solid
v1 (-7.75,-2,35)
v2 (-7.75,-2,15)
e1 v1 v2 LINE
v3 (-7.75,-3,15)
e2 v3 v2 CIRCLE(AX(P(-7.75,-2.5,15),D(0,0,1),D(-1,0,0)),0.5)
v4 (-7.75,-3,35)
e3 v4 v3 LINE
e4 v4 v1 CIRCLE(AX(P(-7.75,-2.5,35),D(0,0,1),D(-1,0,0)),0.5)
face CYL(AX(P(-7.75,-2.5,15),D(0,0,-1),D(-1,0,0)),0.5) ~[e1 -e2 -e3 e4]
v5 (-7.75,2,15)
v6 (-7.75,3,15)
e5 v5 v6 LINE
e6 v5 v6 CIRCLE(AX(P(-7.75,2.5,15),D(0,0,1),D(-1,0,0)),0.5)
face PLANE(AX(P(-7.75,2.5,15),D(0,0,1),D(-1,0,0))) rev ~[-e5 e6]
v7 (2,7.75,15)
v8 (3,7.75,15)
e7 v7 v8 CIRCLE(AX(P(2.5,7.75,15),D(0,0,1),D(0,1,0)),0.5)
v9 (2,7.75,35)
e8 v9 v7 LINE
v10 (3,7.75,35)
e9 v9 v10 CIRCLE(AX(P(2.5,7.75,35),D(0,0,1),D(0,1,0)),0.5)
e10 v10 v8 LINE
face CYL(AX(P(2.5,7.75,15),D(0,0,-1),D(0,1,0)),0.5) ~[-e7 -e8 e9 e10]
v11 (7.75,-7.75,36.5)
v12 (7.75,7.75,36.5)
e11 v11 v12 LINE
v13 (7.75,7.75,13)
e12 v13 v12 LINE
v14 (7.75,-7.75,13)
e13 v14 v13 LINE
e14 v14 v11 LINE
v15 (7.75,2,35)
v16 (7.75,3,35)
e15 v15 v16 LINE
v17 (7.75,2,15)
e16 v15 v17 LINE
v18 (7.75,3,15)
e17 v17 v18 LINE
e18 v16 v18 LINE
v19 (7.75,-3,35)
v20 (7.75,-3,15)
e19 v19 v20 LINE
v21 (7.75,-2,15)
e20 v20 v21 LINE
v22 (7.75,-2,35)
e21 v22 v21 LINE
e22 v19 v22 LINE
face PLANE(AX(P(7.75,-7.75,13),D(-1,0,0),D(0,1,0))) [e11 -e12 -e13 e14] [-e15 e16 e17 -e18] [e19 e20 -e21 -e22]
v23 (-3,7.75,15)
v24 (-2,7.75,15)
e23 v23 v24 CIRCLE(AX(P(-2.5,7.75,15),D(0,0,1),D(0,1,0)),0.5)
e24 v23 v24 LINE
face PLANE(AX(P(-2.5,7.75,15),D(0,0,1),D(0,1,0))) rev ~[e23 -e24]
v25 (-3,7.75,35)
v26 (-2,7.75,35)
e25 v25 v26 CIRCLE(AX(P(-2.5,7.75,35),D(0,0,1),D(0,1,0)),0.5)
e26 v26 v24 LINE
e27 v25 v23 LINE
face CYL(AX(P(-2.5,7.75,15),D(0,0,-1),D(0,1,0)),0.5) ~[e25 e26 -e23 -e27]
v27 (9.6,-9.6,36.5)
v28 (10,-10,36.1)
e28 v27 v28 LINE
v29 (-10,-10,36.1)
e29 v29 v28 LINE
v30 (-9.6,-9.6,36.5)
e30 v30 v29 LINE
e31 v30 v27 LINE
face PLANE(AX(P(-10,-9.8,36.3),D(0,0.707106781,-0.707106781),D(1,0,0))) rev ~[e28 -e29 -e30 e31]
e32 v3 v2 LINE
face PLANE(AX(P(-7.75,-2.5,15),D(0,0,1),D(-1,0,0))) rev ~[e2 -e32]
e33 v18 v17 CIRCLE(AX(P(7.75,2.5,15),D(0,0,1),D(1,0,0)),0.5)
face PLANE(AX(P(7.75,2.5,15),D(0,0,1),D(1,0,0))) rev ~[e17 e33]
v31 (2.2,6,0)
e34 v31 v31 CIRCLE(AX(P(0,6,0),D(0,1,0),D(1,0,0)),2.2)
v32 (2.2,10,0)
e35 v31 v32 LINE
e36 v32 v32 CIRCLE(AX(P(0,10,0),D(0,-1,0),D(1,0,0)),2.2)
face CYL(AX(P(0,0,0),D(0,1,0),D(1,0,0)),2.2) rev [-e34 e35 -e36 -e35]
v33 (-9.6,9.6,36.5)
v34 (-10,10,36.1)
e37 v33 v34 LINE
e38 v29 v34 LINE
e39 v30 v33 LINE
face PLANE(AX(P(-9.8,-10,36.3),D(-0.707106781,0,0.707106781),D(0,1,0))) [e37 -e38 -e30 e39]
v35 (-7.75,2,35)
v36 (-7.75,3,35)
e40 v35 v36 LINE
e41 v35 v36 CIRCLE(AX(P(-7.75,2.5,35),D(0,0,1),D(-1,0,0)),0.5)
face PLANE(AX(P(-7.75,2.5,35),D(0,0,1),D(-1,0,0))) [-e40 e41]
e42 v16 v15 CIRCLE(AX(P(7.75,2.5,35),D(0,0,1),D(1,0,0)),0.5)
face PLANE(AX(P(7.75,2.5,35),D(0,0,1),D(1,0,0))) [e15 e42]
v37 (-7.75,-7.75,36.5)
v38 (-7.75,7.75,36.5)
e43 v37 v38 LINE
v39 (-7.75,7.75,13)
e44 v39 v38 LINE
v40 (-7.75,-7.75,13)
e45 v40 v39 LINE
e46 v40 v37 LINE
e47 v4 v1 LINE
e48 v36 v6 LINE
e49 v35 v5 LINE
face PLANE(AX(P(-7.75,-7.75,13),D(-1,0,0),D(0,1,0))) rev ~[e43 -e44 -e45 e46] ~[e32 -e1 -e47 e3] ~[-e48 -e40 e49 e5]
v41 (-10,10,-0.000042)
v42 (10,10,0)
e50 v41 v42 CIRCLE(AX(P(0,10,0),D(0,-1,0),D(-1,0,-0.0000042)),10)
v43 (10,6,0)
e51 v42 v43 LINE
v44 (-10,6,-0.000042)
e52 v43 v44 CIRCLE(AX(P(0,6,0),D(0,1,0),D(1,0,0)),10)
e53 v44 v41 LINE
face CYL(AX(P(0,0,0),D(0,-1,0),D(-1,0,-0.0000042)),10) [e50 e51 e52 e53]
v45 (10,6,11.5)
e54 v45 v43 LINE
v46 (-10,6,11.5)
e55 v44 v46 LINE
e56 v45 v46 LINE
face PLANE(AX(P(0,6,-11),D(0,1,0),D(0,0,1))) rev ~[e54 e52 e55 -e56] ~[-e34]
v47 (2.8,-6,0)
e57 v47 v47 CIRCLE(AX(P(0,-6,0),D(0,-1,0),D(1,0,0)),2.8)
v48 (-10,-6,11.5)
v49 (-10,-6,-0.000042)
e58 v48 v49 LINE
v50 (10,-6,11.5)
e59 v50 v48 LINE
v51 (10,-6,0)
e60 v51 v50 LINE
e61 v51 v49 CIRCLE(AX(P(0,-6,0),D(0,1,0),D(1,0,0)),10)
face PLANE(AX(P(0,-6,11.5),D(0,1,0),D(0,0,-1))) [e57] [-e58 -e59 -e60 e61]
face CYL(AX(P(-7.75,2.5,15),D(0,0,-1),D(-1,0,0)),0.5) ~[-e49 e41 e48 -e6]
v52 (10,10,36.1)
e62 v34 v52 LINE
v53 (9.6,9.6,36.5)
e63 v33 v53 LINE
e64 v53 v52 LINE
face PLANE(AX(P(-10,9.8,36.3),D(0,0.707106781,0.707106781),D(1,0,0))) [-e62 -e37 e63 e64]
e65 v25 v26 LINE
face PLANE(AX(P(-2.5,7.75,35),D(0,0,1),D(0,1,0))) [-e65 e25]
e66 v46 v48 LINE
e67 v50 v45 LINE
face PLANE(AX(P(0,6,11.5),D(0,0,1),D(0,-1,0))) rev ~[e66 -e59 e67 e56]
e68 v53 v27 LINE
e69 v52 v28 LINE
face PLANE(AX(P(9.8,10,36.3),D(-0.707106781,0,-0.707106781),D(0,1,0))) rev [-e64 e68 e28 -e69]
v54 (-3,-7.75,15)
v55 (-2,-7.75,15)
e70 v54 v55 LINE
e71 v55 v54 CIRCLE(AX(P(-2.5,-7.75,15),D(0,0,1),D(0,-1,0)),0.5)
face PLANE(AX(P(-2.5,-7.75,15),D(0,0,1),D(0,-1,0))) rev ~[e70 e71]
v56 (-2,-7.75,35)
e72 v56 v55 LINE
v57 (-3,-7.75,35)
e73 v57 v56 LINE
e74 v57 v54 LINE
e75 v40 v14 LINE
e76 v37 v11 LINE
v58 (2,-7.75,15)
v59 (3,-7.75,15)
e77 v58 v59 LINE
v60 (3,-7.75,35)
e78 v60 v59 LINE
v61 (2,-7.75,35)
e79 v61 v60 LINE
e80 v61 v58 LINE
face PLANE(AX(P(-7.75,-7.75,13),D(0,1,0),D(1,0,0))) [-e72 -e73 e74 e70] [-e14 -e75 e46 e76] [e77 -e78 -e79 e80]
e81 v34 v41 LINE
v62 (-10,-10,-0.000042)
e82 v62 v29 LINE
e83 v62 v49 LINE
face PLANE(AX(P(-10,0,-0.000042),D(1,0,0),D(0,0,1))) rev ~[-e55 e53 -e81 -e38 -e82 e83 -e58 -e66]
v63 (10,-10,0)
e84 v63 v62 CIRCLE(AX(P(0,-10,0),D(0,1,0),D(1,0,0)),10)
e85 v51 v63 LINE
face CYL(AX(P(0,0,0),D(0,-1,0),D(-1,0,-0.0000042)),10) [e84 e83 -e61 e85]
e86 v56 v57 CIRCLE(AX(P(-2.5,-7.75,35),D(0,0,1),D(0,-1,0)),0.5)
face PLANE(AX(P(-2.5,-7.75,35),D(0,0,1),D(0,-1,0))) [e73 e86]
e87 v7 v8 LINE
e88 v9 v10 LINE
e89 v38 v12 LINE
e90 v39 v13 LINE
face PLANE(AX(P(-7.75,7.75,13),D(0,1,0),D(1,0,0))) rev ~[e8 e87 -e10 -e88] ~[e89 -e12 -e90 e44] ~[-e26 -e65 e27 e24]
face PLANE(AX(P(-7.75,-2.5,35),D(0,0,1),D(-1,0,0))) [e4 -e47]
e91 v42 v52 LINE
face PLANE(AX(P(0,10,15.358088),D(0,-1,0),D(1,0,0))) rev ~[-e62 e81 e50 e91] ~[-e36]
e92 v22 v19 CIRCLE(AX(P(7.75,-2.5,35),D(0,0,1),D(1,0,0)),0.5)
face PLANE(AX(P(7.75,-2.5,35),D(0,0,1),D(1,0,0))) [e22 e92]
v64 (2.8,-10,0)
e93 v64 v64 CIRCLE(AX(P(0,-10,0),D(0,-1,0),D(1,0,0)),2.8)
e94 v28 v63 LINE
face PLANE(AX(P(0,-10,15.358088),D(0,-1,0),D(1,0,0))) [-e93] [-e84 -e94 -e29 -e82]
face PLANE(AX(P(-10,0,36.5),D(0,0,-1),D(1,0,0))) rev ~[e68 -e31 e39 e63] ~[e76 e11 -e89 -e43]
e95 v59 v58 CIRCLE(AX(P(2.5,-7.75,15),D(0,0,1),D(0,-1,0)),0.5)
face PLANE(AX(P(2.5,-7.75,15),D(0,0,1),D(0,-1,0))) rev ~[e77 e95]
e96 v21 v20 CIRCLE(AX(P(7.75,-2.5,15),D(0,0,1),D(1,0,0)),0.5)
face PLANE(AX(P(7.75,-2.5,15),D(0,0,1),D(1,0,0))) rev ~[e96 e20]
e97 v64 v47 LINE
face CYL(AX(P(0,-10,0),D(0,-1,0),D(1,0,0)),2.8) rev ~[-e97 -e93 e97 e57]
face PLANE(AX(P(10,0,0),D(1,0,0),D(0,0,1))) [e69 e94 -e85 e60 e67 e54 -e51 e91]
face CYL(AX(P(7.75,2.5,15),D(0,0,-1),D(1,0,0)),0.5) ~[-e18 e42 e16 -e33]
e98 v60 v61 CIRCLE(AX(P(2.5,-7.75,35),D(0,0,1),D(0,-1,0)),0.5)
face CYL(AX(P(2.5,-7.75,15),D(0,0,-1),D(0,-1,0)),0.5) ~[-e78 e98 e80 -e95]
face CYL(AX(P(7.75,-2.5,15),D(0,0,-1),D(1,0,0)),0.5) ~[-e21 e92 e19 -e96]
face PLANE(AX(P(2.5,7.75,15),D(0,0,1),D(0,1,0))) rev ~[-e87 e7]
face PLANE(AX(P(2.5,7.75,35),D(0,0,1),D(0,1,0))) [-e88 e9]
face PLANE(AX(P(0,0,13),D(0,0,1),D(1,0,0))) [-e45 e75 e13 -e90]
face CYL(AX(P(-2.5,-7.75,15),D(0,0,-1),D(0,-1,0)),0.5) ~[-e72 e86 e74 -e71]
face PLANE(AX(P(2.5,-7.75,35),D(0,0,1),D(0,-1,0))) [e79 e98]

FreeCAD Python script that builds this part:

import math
import FreeCAD as App
import Part
import Sketcher
from FreeCAD import Vector


def edges_at(feature, points):
    """Names of the edges that pass closest to the given points."""
    edges = feature.Shape.Edges
    near = lambda p: min(range(len(edges)), key=lambda i: edges[i].distToShape(Part.Vertex(*p))[0])
    return sorted({f"Edge{near(p) + 1}" for p in points})


def add_polygon(sketch, points):
    """Adds a closed chain of lines whose ends are joined by coincident constraints."""
    first, n = sketch.GeometryCount, len(points)
    for a, b in zip(points, points[1:] + points[:1]):
        sketch.addGeometry(Part.LineSegment(App.Vector(*a, 0), App.Vector(*b, 0)), False)
    for i in range(n):
        sketch.addConstraint(Sketcher.Constraint("Coincident", first + i, 2, first + (i + 1) % n, 1))

doc = App.newDocument("Part")
body = doc.addObject("PartDesign::Body", "Body")

# Sketch on XZ plane
sketch1 = body.newObject("Sketcher::SketchObject", "Sketch")
sketch1.AttachmentSupport = (doc.getObject("XZ_Plane"), [""])
sketch1.MapMode = "FlatFace"
sketch1.addGeometry(Part.ArcOfCircle(Part.Circle(Vector(0, 0, 0), Vector(0, 0, 1), 10), math.radians(-180), math.radians(0)), False)
sketch1.addGeometry(Part.LineSegment(Vector(10, 0, 0), Vector(10, 36.5, 0)), False)
sketch1.addGeometry(Part.LineSegment(Vector(10, 36.5, 0), Vector(-10, 36.5, 0)), False)
sketch1.addGeometry(Part.LineSegment(Vector(-10, 36.5, 0), Vector(-10, 0, 0)), False)
sketch1.addGeometry(Part.Circle(Vector(0, 0, 0), Vector(0, 0, 1), 2.2), False)
sketch1.addConstraint(Sketcher.Constraint("Tangent", 0, 2, 1, 1))
sketch1.addConstraint(Sketcher.Constraint("Coincident", 1, 2, 2, 1))
sketch1.addConstraint(Sketcher.Constraint("Coincident", 2, 2, 3, 1))
sketch1.addConstraint(Sketcher.Constraint("Coincident", 3, 2, 0, 1))
sketch1.addConstraint(Sketcher.Constraint("Vertical", 1))
sketch1.addConstraint(Sketcher.Constraint("Horizontal", 2))
sketch1.addConstraint(Sketcher.Constraint("Vertical", 3))
sketch1.addConstraint(Sketcher.Constraint("Coincident", 0, 3, -1, 1))
sketch1.addConstraint(Sketcher.Constraint("Coincident", 4, 3, -1, 1))
sketch1.addConstraint(Sketcher.Constraint("Radius", 0, 10.0))
sketch1.addConstraint(Sketcher.Constraint("Diameter", 4, 4.4))
sketch1.addConstraint(Sketcher.Constraint("DistanceY", 1, 1, 1, 2, 36.5))
sketch1.addConstraint(Sketcher.Constraint("DistanceY", 3, 2, 3, 1, 36.500042))
pad1 = body.newObject("PartDesign::Pad", "Pad")
pad1.Profile = sketch1
pad1.Length = 20
pad1.Midplane = True

# Sketch on YZ plane
sketch2 = body.newObject("Sketcher::SketchObject", "Sketch001")
sketch2.AttachmentSupport = (doc.getObject("YZ_Plane"), [""])
sketch2.MapMode = "FlatFace"
add_polygon(sketch2, [(-6, 11.5), (-6, -11), (-10, -11), (-10, 11.5), (-11.5, 13), (-11.5, -13), (11.5, -13), (11.5, 13), (10, 11.5), (10, -11), (6, -11), (6, 11.5)])  # lines 0-11
sketch2.addConstraint(Sketcher.Constraint("Vertical", 0))
sketch2.addConstraint(Sketcher.Constraint("Horizontal", 1))
sketch2.addConstraint(Sketcher.Constraint("Vertical", 2))
sketch2.addConstraint(Sketcher.Constraint("Vertical", 4))
sketch2.addConstraint(Sketcher.Constraint("Horizontal", 5))
sketch2.addConstraint(Sketcher.Constraint("Vertical", 6))
sketch2.addConstraint(Sketcher.Constraint("Vertical", 8))
sketch2.addConstraint(Sketcher.Constraint("Horizontal", 9))
sketch2.addConstraint(Sketcher.Constraint("Vertical", 10))
sketch2.addConstraint(Sketcher.Constraint("Horizontal", 11))
sketch2.addConstraint(Sketcher.Constraint("Symmetric", 3, 2, 5, 2, -1, 1))
sketch2.addConstraint(Sketcher.Constraint("Symmetric", 2, 2, 7, 2, -2))
sketch2.addConstraint(Sketcher.Constraint("Symmetric", 0, 2, 9, 2, -2))
sketch2.addConstraint(Sketcher.Constraint("Perpendicular", 3, 7))
sketch2.addConstraint(Sketcher.Constraint("Horizontal", 3, 2, 6, 2))
sketch2.addConstraint(Sketcher.Constraint("Horizontal", 7, 2, 10, 2))
sketch2.addConstraint(Sketcher.Constraint("DistanceX", 1, 2, 1, 1, 4.0))
sketch2.addConstraint(Sketcher.Constraint("DistanceX", 5, 1, 5, 2, 23.0))
sketch2.addConstraint(Sketcher.Constraint("DistanceX", 11, 2, 11, 1, 12.0))
sketch2.addConstraint(Sketcher.Constraint("DistanceY", 4, 2, 4, 1, 26.0))
sketch2.addConstraint(Sketcher.Constraint("DistanceY", 0, 2, 0, 1, 22.5))
pocket1 = body.newObject("PartDesign::Pocket", "Pocket")
pocket1.Profile = sketch2
pocket1.Type = "ThroughAll"
pocket1.Midplane = True

# Sketch on XY plane
sketch3 = body.newObject("Sketcher::SketchObject", "Sketch002")
sketch3.AttachmentSupport = (doc.getObject("XY_Plane"), [""])
sketch3.MapMode = "FlatFace"
sketch3.AttachmentOffset = App.Placement(Vector(0, 0, 13), App.Rotation())
add_polygon(sketch3, [(-8, 8), (-8, -8), (8, -8), (8, 8)])  # lines 0-3
sketch3.addConstraint(Sketcher.Constraint("Vertical", 0))
sketch3.addConstraint(Sketcher.Constraint("Horizontal", 1))
sketch3.addConstraint(Sketcher.Constraint("Vertical", 2))
sketch3.addConstraint(Sketcher.Constraint("Horizontal", 3))
sketch3.addConstraint(Sketcher.Constraint("Symmetric", 0, 2, 2, 2, -1, 1))
sketch3.addConstraint(Sketcher.Constraint("Equal", 3, 0))
sketch3.addConstraint(Sketcher.Constraint("DistanceX", 1, 1, 1, 2, 15.5))
pocket2 = body.newObject("PartDesign::Pocket", "Pocket001")
pocket2.Profile = sketch3
pocket2.Type = "ThroughAll"
pocket2.Reversed = True

# Sketch on XY plane
sketch4 = body.newObject("Sketcher::SketchObject", "Sketch003")
sketch4.AttachmentSupport = (doc.getObject("XY_Plane"), [""])
sketch4.MapMode = "FlatFace"
sketch4.AttachmentOffset = App.Placement(Vector(0, 0, 15), App.Rotation())
sketch4.addGeometry(Part.Circle(Vector(7.8, -2.5, 0), Vector(0, 0, 1), 0.5), False)
sketch4.addConstraint(Sketcher.Constraint("Diameter", 0, 1.0))
sketch4.addConstraint(Sketcher.Constraint("DistanceY", 0, 3, -1, 1, 2.5))
sketch4.addConstraint(Sketcher.Constraint("DistanceX", -1, 1, 0, 3, 7.75))
pad2 = body.newObject("PartDesign::Pad", "Pad001")
pad2.Profile = sketch4
pad2.Length = 20

# Sketch on XY plane
sketch5 = body.newObject("Sketcher::SketchObject", "Sketch004")
sketch5.AttachmentSupport = (doc.getObject("XY_Plane"), [""])
sketch5.MapMode = "FlatFace"
sketch5.AttachmentOffset = App.Placement(Vector(0, 0, 15), App.Rotation())
sketch5.addGeometry(Part.Circle(Vector(7.8, 2.5, 0), Vector(0, 0, 1), 0.5), False)
sketch5.addConstraint(Sketcher.Constraint("Diameter", 0, 1.0))
sketch5.addConstraint(Sketcher.Constraint("DistanceY", -1, 1, 0, 3, 2.5))
sketch5.addConstraint(Sketcher.Constraint("DistanceX", -1, 1, 0, 3, 7.75))
pad3 = body.newObject("PartDesign::Pad", "Pad002")
pad3.Profile = sketch5
pad3.Length = 20
doc.recompute()

polarpattern = body.newObject("PartDesign::PolarPattern", "PolarPattern")
polarpattern.Originals = [pad2, pad3]
polarpattern.Axis = (doc.getObject("Z_Axis"), [""])
polarpattern.Angle = 360
polarpattern.Occurrences = 4
body.Tip = polarpattern

# Sketch on XZ plane
sketch6 = body.newObject("Sketcher::SketchObject", "Sketch005")
sketch6.AttachmentSupport = (doc.getObject("XZ_Plane"), [""])
sketch6.MapMode = "FlatFace"
sketch6.AttachmentOffset = App.Placement(Vector(0, 0, 10), App.Rotation())
sketch6.addGeometry(Part.Circle(Vector(0, 0, 0), Vector(0, 0, 1), 2.8), False)
sketch6.addConstraint(Sketcher.Constraint("Coincident", 0, 3, -1, 1))
sketch6.addConstraint(Sketcher.Constraint("Diameter", 0, 5.6))
pocket3 = body.newObject("PartDesign::Pocket", "Pocket002")
pocket3.Profile = sketch6
pocket3.Length = 4
doc.recompute()

chamfer = body.newObject("PartDesign::Chamfer", "Chamfer")
chamfer.Base = (pocket3, edges_at(pocket3, [
    (10, 0, 36.5),
    (0, -10, 36.5),
    (-10, 0, 36.5),
    (0, 10, 36.5),
]))
chamfer.Size = 0.4

doc.recompute()
